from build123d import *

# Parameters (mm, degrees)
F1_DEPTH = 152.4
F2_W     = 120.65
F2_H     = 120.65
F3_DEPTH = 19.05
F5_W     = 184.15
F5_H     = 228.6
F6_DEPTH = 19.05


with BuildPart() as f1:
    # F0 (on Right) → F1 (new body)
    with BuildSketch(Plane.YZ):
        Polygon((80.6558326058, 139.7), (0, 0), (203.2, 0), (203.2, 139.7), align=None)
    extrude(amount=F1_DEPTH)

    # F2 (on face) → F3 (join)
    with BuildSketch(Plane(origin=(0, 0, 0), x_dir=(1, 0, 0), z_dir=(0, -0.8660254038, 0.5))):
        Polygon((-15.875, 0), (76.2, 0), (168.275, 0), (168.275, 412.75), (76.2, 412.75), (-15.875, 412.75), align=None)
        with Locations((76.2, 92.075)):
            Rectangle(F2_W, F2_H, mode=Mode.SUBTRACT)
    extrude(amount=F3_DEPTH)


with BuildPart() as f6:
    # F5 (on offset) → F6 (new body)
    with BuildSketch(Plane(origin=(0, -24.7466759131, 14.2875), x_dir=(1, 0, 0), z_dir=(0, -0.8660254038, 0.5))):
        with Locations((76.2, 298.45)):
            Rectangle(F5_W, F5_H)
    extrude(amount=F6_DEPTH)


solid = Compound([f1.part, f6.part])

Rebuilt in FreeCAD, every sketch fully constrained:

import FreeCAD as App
import Part
import Sketcher
Q = App.Units.Quantity


def add_polygon(sketch, points):
    """Adds a closed chain of lines whose ends are joined by coincident constraints."""
    first, n = sketch.GeometryCount, len(points)
    for a, b in zip(points, points[1:] + points[:1]):
        sketch.addGeometry(Part.LineSegment(App.Vector(*a, 0), App.Vector(*b, 0)), False)
    for i in range(n):
        sketch.addConstraint(Sketcher.Constraint("Coincident", first + i, 2, first + (i + 1) % n, 1))

doc = App.newDocument("Part")
body = doc.addObject("PartDesign::Body", "Body")

sketch1 = doc.addObject("Sketcher::SketchObject", "Sketch")
body.addObject(sketch1)
sketch1.AttachmentSupport = (doc.YZ_Plane, [""])
sketch1.MapMode = "FlatFace"
add_polygon(sketch1, [(80.655833, 139.7), (0, 0), (203.2, 0), (203.2, 139.7)])
sketch1.addConstraint(Sketcher.Constraint("Horizontal", 1))
sketch1.addConstraint(Sketcher.Constraint("Vertical", 2))
sketch1.addConstraint(Sketcher.Constraint("Horizontal", 3))
sketch1.addConstraint(Sketcher.Constraint("Coincident", 0, 2, -1, 1))
sketch1.addConstraint(Sketcher.Constraint("DistanceX", 1, 1, 1, 2, Q("8 in")))
sketch1.addConstraint(Sketcher.Constraint("DistanceY", 2, 1, 2, 2, Q("5.5 in")))
sketch1.addConstraint(Sketcher.Constraint("Angle", 0, Q("-120 deg")))
pad1 = doc.addObject("PartDesign::Pad", "Pad")
body.addObject(pad1)
pad1.Profile = sketch1
pad1.Length = Q("6 in")

sketch2 = doc.addObject("Sketcher::SketchObject", "Sketch001")
body.addObject(sketch2)
sketch2.Placement = App.Placement(App.Vector(0, 0, 0), App.Rotation(App.Vector(1, 0, 0), App.Vector(0, 0.5, 0.866025404), App.Vector(0, -0.866025404, 0.5), "ZXY"))
add_polygon(sketch2, [(-15.875, 0), (168.275, 0), (168.275, 412.75), (-15.875, 412.75)])
add_polygon(sketch2, [(136.525, 31.75), (15.875, 31.75), (15.875, 152.4), (136.525, 152.4)])
sketch2.addConstraint(Sketcher.Constraint("Horizontal", 0))
sketch2.addConstraint(Sketcher.Constraint("Vertical", 1))
sketch2.addConstraint(Sketcher.Constraint("Horizontal", 2))
sketch2.addConstraint(Sketcher.Constraint("Vertical", 3))
sketch2.addConstraint(Sketcher.Constraint("Horizontal", 4))
sketch2.addConstraint(Sketcher.Constraint("Vertical", 5))
sketch2.addConstraint(Sketcher.Constraint("Horizontal", 6))
sketch2.addConstraint(Sketcher.Constraint("Vertical", 7))
sketch2.addConstraint(Sketcher.Constraint("PointOnObject", 0, 2, -1))
sketch2.addConstraint(Sketcher.Constraint("Equal", 6, 5))
sketch2.addConstraint(Sketcher.Constraint("DistanceY", -1, 1, 5, 2, Q("6 in")))
sketch2.addConstraint(Sketcher.Constraint("DistanceX", 4, 2, 0, 2, Q("6 in")))
sketch2.addConstraint(Sketcher.Constraint("DistanceY", 4, 2, 2, 2, Q("15 in")))
sketch2.addConstraint(Sketcher.Constraint("DistanceX", 3, 2, 6, 2, Q("6 in")))
sketch2.addConstraint(Sketcher.Constraint("DistanceX", 0, 1, 0, 2, Q("7.25 in")))
sketch2.addConstraint(Sketcher.Constraint("DistanceX", -1, 1, 0, 2, Q("6.625 in")))
pad2 = doc.addObject("PartDesign::Pad", "Pad001")
body.addObject(pad2)
pad2.Profile = sketch2
pad2.Length = Q("0.75 in")
body2 = doc.addObject("PartDesign::Body", "Body001")

sketch3 = doc.addObject("Sketcher::SketchObject", "Sketch002")
body2.addObject(sketch3)
sketch3.Placement = App.Placement(App.Vector(0, -24.746676, 14.2875), App.Rotation(App.Vector(1, 0, 0), App.Vector(0, 0.5, 0.866025404), App.Vector(0, -0.866025404, 0.5), "ZXY"))
add_polygon(sketch3, [(-15.875, 412.75), (-15.875, 184.15), (168.275, 184.15), (168.275, 412.75)])
sketch3.addConstraint(Sketcher.Constraint("Vertical", 0))
sketch3.addConstraint(Sketcher.Constraint("Horizontal", 1))
sketch3.addConstraint(Sketcher.Constraint("Vertical", 2))
sketch3.addConstraint(Sketcher.Constraint("Horizontal", 3))
sketch3.addConstraint(Sketcher.Constraint("DistanceY", 0, 2, 0, 1, Q("9 in")))
sketch3.addConstraint(Sketcher.Constraint("DistanceX", 1, 1, 1, 2, Q("7.25 in")))
sketch3.addConstraint(Sketcher.Constraint("DistanceY", -1, 1, 0, 2, Q("7.25 in")))
sketch3.addConstraint(Sketcher.Constraint("DistanceX", 0, 2, -1, 1, Q("0.625 in")))
pad3 = doc.addObject("PartDesign::Pad", "Pad002")
body2.addObject(pad3)
pad3.Profile = sketch3
pad3.Length = Q("0.75 in")

doc.recompute()
